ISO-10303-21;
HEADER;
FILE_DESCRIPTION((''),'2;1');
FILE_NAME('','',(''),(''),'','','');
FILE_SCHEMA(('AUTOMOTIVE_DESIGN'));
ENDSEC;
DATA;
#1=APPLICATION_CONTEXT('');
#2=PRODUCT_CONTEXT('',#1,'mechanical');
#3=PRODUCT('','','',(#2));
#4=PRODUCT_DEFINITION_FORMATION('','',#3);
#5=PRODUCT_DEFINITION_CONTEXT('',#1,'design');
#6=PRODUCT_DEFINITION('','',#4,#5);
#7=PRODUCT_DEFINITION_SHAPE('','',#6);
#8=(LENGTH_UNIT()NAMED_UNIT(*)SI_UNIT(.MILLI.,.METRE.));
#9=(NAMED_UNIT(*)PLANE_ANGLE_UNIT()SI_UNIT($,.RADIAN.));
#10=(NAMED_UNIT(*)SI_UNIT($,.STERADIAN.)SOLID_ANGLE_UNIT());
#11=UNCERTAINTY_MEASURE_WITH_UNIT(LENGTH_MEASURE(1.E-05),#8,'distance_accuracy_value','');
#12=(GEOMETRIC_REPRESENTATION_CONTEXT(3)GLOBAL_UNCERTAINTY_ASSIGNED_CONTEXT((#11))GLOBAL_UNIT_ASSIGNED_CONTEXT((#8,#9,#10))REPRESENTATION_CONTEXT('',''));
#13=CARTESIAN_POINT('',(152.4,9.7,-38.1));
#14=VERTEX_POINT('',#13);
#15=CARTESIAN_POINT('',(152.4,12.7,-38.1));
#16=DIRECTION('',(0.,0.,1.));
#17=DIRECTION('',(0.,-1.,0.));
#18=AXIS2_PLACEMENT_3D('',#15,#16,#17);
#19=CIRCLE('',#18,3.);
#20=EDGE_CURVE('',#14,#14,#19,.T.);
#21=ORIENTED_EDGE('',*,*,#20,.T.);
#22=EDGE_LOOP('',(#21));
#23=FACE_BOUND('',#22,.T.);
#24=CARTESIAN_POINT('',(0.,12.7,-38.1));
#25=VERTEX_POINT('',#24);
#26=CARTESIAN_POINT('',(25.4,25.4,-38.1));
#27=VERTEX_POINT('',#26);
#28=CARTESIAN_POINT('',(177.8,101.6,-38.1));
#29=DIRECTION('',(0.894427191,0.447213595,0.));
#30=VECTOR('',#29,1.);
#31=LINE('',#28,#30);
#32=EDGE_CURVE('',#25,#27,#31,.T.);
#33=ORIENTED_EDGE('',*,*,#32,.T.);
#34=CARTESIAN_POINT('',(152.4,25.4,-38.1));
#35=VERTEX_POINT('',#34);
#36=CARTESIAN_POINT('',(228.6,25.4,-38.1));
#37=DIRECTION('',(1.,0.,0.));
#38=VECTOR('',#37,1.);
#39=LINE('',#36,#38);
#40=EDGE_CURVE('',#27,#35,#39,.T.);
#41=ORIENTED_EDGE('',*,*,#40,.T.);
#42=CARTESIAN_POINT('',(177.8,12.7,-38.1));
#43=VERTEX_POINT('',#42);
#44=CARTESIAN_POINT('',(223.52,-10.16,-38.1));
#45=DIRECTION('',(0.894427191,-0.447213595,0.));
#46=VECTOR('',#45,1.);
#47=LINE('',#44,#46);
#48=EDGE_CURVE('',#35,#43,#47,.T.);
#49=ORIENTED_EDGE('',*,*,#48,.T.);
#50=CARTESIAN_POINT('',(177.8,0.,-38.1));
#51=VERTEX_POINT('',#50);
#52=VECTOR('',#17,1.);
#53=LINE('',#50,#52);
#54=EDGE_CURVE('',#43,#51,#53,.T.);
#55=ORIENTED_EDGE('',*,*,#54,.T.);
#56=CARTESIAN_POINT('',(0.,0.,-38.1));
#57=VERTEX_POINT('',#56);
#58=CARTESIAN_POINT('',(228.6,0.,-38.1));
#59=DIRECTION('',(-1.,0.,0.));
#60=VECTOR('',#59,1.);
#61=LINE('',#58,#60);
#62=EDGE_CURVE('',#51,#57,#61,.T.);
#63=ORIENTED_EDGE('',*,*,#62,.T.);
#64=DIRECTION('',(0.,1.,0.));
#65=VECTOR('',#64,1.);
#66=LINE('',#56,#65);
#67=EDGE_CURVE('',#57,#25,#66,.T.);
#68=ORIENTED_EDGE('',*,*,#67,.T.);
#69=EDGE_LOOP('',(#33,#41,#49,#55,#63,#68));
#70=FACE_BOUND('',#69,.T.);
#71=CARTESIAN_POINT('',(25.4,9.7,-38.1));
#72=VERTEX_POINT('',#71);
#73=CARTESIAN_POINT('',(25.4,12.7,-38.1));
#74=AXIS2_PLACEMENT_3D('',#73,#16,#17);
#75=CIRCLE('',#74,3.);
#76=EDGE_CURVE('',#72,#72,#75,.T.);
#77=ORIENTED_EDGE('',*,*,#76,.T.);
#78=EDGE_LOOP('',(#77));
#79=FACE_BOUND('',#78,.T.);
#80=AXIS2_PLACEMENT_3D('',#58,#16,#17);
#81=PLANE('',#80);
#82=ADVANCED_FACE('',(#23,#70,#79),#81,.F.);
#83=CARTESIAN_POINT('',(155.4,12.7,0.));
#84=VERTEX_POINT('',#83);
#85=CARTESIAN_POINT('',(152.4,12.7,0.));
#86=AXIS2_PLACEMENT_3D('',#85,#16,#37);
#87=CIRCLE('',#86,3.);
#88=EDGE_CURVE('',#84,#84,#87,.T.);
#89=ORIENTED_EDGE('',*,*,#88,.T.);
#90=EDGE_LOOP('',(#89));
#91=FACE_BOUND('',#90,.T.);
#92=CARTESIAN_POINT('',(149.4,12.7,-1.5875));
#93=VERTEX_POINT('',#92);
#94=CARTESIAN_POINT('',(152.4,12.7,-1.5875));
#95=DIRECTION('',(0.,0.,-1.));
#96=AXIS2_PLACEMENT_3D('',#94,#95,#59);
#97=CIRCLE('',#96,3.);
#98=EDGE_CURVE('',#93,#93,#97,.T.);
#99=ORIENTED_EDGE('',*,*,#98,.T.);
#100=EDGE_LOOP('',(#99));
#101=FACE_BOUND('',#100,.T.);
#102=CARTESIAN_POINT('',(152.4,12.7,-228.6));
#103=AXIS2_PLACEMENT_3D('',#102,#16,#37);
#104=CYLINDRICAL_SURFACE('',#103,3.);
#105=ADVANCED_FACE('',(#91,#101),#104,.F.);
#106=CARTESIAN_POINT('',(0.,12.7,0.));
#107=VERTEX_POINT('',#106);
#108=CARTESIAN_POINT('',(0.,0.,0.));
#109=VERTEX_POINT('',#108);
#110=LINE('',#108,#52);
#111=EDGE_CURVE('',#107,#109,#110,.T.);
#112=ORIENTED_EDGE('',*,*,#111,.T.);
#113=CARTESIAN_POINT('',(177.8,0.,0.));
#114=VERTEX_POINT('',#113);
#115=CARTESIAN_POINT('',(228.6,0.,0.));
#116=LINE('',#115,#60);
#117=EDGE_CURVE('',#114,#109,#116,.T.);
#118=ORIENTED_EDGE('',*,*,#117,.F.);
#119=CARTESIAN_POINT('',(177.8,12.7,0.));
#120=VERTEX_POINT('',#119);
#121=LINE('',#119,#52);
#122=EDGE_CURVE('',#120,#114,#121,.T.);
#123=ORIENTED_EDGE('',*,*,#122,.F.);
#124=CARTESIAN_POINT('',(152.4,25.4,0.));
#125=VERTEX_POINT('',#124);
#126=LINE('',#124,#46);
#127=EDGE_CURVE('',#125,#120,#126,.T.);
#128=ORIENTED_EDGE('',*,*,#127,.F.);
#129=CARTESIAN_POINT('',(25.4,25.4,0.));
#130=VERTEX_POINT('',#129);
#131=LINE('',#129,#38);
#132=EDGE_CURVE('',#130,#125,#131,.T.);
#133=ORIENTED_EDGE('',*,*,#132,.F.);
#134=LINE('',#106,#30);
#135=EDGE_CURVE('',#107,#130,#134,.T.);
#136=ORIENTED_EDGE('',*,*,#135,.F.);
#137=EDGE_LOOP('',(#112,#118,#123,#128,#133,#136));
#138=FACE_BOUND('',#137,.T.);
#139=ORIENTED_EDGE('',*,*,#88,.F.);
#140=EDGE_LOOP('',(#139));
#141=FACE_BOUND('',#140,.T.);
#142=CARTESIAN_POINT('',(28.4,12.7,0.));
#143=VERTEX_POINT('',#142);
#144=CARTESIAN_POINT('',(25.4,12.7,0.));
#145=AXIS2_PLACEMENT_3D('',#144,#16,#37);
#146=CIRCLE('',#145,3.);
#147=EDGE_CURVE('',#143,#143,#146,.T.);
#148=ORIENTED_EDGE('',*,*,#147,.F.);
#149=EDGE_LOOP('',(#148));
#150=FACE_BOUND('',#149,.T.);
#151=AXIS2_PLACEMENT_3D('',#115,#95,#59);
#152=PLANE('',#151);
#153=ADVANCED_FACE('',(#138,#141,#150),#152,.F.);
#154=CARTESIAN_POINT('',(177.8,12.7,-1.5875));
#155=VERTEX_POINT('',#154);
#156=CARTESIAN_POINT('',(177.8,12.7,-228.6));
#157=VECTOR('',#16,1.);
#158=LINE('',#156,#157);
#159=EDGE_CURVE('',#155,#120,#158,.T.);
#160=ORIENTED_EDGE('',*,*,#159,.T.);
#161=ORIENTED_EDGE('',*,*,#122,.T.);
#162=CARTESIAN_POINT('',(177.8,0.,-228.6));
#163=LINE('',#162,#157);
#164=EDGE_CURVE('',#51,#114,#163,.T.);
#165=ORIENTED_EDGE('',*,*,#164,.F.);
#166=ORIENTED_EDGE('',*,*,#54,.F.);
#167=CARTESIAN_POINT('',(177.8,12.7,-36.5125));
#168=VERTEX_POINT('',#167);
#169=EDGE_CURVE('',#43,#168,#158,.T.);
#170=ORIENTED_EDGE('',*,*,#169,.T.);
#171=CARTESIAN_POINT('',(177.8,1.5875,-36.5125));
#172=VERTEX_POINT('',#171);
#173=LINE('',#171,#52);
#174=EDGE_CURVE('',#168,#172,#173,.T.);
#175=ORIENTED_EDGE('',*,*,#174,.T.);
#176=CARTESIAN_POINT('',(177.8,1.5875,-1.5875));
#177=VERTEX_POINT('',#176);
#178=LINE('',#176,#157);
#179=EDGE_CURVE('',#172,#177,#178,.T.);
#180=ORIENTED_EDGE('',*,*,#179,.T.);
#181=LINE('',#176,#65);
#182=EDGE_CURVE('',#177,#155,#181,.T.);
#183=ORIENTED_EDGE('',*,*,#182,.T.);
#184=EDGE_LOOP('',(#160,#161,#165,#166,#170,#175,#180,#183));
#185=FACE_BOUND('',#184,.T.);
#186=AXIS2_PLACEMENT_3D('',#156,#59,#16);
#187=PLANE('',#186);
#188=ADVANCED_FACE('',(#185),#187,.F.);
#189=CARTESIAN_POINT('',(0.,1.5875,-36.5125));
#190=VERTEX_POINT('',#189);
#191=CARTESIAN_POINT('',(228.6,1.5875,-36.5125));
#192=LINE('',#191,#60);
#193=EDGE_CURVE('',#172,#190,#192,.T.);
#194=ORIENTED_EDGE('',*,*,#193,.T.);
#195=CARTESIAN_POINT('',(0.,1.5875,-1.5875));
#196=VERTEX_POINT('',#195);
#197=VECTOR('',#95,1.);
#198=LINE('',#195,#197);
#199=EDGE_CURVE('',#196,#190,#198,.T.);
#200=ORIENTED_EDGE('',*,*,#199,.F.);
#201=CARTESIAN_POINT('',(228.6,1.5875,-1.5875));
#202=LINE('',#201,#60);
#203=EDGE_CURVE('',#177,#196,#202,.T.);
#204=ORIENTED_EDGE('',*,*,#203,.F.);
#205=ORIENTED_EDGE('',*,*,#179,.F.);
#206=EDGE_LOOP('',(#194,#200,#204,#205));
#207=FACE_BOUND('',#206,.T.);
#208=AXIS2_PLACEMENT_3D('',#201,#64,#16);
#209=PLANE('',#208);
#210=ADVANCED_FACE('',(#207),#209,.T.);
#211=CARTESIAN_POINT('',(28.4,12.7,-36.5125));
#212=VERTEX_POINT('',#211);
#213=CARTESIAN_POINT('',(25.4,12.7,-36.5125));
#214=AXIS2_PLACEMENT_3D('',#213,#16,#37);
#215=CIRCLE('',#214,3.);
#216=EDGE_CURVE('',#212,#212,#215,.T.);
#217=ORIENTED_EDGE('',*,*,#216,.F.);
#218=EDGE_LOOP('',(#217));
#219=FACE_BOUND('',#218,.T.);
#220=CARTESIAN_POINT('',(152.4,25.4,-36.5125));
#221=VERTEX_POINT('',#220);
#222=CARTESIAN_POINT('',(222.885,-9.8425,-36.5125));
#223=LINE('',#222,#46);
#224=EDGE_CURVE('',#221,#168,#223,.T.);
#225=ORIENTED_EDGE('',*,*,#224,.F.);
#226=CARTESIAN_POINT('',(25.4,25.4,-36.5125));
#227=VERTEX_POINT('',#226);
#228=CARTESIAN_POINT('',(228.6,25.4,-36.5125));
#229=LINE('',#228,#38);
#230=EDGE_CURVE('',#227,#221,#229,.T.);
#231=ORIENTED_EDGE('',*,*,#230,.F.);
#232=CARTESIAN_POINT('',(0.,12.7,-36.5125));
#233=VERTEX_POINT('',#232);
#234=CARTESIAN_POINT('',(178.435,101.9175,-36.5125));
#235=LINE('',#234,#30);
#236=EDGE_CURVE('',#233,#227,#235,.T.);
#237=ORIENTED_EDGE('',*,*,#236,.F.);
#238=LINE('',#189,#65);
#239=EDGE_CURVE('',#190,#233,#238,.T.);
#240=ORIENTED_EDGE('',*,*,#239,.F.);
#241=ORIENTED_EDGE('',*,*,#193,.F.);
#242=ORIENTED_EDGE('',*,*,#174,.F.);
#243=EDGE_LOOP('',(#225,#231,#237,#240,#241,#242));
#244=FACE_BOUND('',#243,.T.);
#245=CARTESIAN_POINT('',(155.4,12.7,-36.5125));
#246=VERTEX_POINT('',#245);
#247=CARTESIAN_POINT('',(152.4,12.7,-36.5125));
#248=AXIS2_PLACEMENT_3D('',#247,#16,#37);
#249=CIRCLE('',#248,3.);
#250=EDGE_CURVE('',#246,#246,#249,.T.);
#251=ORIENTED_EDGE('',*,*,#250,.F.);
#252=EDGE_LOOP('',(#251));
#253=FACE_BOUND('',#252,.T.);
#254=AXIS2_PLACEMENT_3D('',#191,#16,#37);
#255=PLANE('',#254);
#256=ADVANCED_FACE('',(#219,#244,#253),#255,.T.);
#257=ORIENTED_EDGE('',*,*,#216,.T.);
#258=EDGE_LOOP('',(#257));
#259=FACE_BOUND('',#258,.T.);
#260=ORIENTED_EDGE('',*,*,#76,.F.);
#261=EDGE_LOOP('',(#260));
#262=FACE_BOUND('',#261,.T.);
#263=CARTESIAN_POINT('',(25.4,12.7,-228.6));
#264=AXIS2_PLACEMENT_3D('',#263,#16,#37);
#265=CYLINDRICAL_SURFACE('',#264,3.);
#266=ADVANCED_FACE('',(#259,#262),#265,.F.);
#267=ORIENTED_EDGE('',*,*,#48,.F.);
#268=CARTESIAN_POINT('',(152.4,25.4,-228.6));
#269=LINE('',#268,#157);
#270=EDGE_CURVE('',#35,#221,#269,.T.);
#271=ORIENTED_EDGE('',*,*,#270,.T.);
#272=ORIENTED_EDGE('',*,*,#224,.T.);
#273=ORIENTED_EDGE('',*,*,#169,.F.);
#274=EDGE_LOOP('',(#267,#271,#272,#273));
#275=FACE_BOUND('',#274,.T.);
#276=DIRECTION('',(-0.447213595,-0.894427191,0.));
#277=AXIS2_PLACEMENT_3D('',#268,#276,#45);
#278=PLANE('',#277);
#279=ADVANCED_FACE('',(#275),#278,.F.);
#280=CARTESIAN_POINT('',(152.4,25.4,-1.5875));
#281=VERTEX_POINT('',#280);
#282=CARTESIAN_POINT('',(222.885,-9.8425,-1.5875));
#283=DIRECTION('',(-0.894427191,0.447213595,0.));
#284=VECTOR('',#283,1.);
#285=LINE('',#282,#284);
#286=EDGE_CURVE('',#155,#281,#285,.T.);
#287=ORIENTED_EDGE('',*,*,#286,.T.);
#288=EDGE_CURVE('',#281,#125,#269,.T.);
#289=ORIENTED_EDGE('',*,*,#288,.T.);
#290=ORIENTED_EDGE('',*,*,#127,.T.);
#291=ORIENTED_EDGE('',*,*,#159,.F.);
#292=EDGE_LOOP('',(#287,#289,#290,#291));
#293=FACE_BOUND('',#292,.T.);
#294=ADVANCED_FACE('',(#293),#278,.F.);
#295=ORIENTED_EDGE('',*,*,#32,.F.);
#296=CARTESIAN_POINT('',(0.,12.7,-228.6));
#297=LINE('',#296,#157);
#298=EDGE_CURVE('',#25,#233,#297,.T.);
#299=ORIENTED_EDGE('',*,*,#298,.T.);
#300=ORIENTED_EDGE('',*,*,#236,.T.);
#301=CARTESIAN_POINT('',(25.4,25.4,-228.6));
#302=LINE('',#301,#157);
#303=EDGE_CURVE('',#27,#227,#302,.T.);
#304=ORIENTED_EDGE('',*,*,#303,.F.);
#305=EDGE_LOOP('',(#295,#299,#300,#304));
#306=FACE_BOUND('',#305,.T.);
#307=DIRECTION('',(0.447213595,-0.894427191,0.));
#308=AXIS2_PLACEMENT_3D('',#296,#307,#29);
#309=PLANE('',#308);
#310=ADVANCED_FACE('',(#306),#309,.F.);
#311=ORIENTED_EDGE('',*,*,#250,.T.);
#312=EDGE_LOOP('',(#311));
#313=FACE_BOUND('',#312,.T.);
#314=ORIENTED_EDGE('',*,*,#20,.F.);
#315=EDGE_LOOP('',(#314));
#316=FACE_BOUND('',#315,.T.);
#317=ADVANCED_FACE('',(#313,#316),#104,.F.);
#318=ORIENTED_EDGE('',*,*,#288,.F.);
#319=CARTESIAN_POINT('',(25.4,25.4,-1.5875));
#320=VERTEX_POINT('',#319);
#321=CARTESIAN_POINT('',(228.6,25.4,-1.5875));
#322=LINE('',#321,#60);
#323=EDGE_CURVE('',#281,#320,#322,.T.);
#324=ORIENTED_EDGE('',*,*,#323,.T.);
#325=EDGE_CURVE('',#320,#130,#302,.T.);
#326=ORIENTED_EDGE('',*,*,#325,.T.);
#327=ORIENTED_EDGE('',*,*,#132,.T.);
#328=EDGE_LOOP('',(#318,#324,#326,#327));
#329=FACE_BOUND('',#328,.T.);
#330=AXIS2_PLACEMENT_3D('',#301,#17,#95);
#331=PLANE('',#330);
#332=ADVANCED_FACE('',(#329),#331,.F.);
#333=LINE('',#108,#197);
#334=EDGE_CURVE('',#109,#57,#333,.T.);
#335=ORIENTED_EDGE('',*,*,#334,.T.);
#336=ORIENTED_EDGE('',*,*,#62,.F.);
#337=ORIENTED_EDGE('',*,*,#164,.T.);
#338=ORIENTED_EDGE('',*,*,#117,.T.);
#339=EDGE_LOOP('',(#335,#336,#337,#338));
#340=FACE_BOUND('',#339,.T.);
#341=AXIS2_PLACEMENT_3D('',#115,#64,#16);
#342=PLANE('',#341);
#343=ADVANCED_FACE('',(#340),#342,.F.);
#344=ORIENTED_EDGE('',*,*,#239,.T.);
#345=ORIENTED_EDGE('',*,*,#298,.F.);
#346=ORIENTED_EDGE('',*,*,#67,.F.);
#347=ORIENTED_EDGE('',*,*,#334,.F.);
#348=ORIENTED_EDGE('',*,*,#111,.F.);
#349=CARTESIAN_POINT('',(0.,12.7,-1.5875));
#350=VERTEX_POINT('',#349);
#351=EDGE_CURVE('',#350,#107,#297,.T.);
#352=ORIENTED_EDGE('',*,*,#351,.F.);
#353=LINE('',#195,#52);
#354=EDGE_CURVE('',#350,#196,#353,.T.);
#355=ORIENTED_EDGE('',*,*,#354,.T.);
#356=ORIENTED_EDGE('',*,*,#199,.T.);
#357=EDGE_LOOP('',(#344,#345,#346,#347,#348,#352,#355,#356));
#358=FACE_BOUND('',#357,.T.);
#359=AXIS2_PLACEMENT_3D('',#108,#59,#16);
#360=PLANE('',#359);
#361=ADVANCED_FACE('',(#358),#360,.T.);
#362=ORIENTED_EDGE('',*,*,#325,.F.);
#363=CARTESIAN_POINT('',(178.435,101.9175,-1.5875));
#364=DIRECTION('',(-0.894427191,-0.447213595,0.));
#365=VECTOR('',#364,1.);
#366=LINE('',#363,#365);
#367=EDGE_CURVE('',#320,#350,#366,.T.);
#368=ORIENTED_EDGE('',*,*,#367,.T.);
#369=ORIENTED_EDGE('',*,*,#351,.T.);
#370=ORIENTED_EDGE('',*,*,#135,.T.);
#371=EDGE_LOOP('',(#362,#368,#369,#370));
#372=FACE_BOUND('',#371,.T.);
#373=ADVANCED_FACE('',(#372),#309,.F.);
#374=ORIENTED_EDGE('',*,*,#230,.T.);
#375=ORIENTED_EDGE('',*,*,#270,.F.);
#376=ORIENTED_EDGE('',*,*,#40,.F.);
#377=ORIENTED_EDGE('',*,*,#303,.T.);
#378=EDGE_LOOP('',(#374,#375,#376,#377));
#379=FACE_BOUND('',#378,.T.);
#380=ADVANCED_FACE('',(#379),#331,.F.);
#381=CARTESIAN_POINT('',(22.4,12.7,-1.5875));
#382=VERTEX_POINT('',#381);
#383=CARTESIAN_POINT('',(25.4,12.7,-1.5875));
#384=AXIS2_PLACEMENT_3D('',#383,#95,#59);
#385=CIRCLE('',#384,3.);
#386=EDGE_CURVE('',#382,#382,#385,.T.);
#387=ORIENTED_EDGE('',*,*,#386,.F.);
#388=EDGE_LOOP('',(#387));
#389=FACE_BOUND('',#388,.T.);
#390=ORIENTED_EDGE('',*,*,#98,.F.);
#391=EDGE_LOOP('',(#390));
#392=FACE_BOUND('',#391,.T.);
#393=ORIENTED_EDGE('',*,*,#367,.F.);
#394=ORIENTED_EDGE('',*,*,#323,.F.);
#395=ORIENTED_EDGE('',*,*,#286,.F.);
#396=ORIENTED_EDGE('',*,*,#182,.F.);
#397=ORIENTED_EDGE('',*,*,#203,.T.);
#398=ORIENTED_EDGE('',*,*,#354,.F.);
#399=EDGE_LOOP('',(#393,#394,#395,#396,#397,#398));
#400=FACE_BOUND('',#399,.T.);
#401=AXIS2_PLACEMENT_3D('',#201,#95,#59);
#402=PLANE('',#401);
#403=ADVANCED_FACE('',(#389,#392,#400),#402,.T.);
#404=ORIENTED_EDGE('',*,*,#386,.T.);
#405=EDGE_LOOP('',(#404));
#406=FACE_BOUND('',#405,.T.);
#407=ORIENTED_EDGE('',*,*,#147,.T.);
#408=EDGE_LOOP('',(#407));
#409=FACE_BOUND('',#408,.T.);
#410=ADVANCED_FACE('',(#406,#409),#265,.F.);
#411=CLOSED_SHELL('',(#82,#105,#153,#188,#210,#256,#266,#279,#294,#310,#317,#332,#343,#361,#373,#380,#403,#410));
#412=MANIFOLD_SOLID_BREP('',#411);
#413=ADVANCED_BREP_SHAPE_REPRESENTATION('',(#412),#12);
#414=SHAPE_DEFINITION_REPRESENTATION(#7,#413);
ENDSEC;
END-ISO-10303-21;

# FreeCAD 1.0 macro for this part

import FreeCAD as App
import Part
import Sketcher
from FreeCAD import Vector
Q = App.Units.Quantity

doc = App.newDocument("Part")
body = doc.addObject("PartDesign::Body", "Body")

# Sketch on YZ plane
sketch1 = body.newObject("Sketcher::SketchObject", "Sketch")
sketch1.AttachmentSupport = (doc.getObject("YZ_Plane"), [""])
sketch1.MapMode = "FlatFace"
sketch1.addGeometry([
    Part.LineSegment(Vector(38, 0, 0), Vector(0, 0, 0)),  # 0
    Part.LineSegment(Vector(0, 0, 0), Vector(0, -38, 0)),  # 1
    Part.LineSegment(Vector(0, -38, 0), Vector(38, -38, 0)),  # 2
    Part.LineSegment(Vector(38, -38, 0), Vector(38, 0, 0)),  # 3
    Part.LineSegment(Vector(2, -37, 0), Vector(2, -2, 0)),  # 4
    Part.LineSegment(Vector(2, -2, 0), Vector(37, -2, 0)),  # 5
    Part.LineSegment(Vector(37, -2, 0), Vector(37, -37, 0)),  # 6
    Part.LineSegment(Vector(37, -37, 0), Vector(2, -37, 0)),  # 7
], False)
sketch1.addConstraint([
    Sketcher.Constraint("Coincident", 0, 2, 1, 1),
    Sketcher.Constraint("Coincident", 1, 2, 2, 1),
    Sketcher.Constraint("Coincident", 2, 2, 3, 1),
    Sketcher.Constraint("Coincident", 3, 2, 0, 1),
    Sketcher.Constraint("Coincident", 4, 2, 5, 1),
    Sketcher.Constraint("Coincident", 5, 2, 6, 1),
    Sketcher.Constraint("Coincident", 6, 2, 7, 1),
    Sketcher.Constraint("Coincident", 7, 2, 4, 1),
    Sketcher.Constraint("Horizontal", 0),
    Sketcher.Constraint("Vertical", 1),
    Sketcher.Constraint("Horizontal", 2),
    Sketcher.Constraint("Vertical", 3),
    Sketcher.Constraint("Vertical", 4),
    Sketcher.Constraint("Horizontal", 5),
    Sketcher.Constraint("Vertical", 6),
    Sketcher.Constraint("Horizontal", 7),
    Sketcher.Constraint("Coincident", 0, 2, -1, 1),
    Sketcher.Constraint("Equal", 2, 1),
    Sketcher.Constraint("Equal", 7, 4),
    Sketcher.Constraint("DistanceX", 0, 2, 0, 1, Q("1.5 in")),
    Sketcher.Constraint("DistanceX", 5, 1, 5, 2, Q("1.375 in")),
    Sketcher.Constraint("DistanceX", -1, 1, 4, 2, Q("0.0625 in")),
    Sketcher.Constraint("DistanceY", 4, 2, -1, 1, Q("0.0625 in")),
])
pad1 = body.newObject("PartDesign::Pad", "Pad")
pad1.Profile = sketch1
pad1.Length = Q("9 in")

# Sketch on XY plane
sketch2 = body.newObject("Sketcher::SketchObject", "Sketch001")
sketch2.AttachmentSupport = (doc.getObject("XY_Plane"), [""])
sketch2.MapMode = "FlatFace"
sketch2.addGeometry([
    Part.Circle(Vector(25.4, 12.7, 0), Vector(0, 0, 1), 3),  # 0
    Part.Circle(Vector(152.4, 12.7, 0), Vector(0, 0, 1), 3),  # 1
    Part.LineSegment(Vector(0, 12.7, 0), Vector(25.4, 25.4, 0)),  # 2
    Part.LineSegment(Vector(25.4, 25.4, 0), Vector(152.4, 25.4, 0)),  # 3
    Part.LineSegment(Vector(152.4, 25.4, 0), Vector(177.8, 12.7, 0)),  # 4
    Part.LineSegment(Vector(177.8, 12.7, 0), Vector(177.8, 0, 0)),  # 5
    Part.LineSegment(Vector(177.8, 0, 0), Vector(228.6, 0, 0)),  # 6
    Part.LineSegment(Vector(228.6, 0, 0), Vector(228.6, 38.1, 0)),  # 7
    Part.LineSegment(Vector(228.6, 38.1, 0), Vector(0, 38.1, 0)),  # 8
    Part.LineSegment(Vector(0, 38.1, 0), Vector(0, 12.7, 0)),  # 9
], False)
sketch2.addConstraint([
    Sketcher.Constraint("Coincident", 2, 2, 3, 1),
    Sketcher.Constraint("Coincident", 3, 2, 4, 1),
    Sketcher.Constraint("Coincident", 4, 2, 5, 1),
    Sketcher.Constraint("Coincident", 5, 2, 6, 1),
    Sketcher.Constraint("Coincident", 6, 2, 7, 1),
    Sketcher.Constraint("Coincident", 7, 2, 8, 1),
    Sketcher.Constraint("Coincident", 8, 2, 9, 1),
    Sketcher.Constraint("Coincident", 9, 2, 2, 1),
    Sketcher.Constraint("Horizontal", 3),
    Sketcher.Constraint("Vertical", 5),
    Sketcher.Constraint("Horizontal", 6),
    Sketcher.Constraint("Vertical", 7),
    Sketcher.Constraint("Horizontal", 8),
    Sketcher.Constraint("Vertical", 9),
    Sketcher.Constraint("Equal", 0, 1),
    Sketcher.Constraint("PointOnObject", 5, 2, -1),
    Sketcher.Constraint("PointOnObject", 8, 2, -2),
    Sketcher.Constraint("Horizontal", 0, 3, 1, 3),
    Sketcher.Constraint("Horizontal", 1, 3, 4, 2),
    Sketcher.Constraint("Horizontal", 4, 2, 9, 2),
    Sketcher.Constraint("Vertical", 0, 3, 2, 2),
    Sketcher.Constraint("Vertical", 1, 3, 3, 2),
    Sketcher.Constraint("Equal", 2, 4),
    Sketcher.Constraint("DistanceX", 3, 1, 3, 2, Q("5 in")),
    Sketcher.Constraint("DistanceX", 6, 1, 6, 2, Q("2 in")),
    Sketcher.Constraint("DistanceX", 8, 2, 8, 1, Q("9 in")),
    Sketcher.Constraint("DistanceY", 9, 2, 9, 1, Q("1 in")),
    Sketcher.Constraint("DistanceY", 5, 2, 5, 1, Q("0.5 in")),
    Sketcher.Constraint("DistanceY", -1, 1, 2, 2, Q("1 in")),
    Sketcher.Constraint("Diameter", 0, Q("6 mm")),
])
pocket1 = body.newObject("PartDesign::Pocket", "Pocket")
pocket1.Profile = sketch2
pocket1.Length = Q("9 in")

doc.recompute()
